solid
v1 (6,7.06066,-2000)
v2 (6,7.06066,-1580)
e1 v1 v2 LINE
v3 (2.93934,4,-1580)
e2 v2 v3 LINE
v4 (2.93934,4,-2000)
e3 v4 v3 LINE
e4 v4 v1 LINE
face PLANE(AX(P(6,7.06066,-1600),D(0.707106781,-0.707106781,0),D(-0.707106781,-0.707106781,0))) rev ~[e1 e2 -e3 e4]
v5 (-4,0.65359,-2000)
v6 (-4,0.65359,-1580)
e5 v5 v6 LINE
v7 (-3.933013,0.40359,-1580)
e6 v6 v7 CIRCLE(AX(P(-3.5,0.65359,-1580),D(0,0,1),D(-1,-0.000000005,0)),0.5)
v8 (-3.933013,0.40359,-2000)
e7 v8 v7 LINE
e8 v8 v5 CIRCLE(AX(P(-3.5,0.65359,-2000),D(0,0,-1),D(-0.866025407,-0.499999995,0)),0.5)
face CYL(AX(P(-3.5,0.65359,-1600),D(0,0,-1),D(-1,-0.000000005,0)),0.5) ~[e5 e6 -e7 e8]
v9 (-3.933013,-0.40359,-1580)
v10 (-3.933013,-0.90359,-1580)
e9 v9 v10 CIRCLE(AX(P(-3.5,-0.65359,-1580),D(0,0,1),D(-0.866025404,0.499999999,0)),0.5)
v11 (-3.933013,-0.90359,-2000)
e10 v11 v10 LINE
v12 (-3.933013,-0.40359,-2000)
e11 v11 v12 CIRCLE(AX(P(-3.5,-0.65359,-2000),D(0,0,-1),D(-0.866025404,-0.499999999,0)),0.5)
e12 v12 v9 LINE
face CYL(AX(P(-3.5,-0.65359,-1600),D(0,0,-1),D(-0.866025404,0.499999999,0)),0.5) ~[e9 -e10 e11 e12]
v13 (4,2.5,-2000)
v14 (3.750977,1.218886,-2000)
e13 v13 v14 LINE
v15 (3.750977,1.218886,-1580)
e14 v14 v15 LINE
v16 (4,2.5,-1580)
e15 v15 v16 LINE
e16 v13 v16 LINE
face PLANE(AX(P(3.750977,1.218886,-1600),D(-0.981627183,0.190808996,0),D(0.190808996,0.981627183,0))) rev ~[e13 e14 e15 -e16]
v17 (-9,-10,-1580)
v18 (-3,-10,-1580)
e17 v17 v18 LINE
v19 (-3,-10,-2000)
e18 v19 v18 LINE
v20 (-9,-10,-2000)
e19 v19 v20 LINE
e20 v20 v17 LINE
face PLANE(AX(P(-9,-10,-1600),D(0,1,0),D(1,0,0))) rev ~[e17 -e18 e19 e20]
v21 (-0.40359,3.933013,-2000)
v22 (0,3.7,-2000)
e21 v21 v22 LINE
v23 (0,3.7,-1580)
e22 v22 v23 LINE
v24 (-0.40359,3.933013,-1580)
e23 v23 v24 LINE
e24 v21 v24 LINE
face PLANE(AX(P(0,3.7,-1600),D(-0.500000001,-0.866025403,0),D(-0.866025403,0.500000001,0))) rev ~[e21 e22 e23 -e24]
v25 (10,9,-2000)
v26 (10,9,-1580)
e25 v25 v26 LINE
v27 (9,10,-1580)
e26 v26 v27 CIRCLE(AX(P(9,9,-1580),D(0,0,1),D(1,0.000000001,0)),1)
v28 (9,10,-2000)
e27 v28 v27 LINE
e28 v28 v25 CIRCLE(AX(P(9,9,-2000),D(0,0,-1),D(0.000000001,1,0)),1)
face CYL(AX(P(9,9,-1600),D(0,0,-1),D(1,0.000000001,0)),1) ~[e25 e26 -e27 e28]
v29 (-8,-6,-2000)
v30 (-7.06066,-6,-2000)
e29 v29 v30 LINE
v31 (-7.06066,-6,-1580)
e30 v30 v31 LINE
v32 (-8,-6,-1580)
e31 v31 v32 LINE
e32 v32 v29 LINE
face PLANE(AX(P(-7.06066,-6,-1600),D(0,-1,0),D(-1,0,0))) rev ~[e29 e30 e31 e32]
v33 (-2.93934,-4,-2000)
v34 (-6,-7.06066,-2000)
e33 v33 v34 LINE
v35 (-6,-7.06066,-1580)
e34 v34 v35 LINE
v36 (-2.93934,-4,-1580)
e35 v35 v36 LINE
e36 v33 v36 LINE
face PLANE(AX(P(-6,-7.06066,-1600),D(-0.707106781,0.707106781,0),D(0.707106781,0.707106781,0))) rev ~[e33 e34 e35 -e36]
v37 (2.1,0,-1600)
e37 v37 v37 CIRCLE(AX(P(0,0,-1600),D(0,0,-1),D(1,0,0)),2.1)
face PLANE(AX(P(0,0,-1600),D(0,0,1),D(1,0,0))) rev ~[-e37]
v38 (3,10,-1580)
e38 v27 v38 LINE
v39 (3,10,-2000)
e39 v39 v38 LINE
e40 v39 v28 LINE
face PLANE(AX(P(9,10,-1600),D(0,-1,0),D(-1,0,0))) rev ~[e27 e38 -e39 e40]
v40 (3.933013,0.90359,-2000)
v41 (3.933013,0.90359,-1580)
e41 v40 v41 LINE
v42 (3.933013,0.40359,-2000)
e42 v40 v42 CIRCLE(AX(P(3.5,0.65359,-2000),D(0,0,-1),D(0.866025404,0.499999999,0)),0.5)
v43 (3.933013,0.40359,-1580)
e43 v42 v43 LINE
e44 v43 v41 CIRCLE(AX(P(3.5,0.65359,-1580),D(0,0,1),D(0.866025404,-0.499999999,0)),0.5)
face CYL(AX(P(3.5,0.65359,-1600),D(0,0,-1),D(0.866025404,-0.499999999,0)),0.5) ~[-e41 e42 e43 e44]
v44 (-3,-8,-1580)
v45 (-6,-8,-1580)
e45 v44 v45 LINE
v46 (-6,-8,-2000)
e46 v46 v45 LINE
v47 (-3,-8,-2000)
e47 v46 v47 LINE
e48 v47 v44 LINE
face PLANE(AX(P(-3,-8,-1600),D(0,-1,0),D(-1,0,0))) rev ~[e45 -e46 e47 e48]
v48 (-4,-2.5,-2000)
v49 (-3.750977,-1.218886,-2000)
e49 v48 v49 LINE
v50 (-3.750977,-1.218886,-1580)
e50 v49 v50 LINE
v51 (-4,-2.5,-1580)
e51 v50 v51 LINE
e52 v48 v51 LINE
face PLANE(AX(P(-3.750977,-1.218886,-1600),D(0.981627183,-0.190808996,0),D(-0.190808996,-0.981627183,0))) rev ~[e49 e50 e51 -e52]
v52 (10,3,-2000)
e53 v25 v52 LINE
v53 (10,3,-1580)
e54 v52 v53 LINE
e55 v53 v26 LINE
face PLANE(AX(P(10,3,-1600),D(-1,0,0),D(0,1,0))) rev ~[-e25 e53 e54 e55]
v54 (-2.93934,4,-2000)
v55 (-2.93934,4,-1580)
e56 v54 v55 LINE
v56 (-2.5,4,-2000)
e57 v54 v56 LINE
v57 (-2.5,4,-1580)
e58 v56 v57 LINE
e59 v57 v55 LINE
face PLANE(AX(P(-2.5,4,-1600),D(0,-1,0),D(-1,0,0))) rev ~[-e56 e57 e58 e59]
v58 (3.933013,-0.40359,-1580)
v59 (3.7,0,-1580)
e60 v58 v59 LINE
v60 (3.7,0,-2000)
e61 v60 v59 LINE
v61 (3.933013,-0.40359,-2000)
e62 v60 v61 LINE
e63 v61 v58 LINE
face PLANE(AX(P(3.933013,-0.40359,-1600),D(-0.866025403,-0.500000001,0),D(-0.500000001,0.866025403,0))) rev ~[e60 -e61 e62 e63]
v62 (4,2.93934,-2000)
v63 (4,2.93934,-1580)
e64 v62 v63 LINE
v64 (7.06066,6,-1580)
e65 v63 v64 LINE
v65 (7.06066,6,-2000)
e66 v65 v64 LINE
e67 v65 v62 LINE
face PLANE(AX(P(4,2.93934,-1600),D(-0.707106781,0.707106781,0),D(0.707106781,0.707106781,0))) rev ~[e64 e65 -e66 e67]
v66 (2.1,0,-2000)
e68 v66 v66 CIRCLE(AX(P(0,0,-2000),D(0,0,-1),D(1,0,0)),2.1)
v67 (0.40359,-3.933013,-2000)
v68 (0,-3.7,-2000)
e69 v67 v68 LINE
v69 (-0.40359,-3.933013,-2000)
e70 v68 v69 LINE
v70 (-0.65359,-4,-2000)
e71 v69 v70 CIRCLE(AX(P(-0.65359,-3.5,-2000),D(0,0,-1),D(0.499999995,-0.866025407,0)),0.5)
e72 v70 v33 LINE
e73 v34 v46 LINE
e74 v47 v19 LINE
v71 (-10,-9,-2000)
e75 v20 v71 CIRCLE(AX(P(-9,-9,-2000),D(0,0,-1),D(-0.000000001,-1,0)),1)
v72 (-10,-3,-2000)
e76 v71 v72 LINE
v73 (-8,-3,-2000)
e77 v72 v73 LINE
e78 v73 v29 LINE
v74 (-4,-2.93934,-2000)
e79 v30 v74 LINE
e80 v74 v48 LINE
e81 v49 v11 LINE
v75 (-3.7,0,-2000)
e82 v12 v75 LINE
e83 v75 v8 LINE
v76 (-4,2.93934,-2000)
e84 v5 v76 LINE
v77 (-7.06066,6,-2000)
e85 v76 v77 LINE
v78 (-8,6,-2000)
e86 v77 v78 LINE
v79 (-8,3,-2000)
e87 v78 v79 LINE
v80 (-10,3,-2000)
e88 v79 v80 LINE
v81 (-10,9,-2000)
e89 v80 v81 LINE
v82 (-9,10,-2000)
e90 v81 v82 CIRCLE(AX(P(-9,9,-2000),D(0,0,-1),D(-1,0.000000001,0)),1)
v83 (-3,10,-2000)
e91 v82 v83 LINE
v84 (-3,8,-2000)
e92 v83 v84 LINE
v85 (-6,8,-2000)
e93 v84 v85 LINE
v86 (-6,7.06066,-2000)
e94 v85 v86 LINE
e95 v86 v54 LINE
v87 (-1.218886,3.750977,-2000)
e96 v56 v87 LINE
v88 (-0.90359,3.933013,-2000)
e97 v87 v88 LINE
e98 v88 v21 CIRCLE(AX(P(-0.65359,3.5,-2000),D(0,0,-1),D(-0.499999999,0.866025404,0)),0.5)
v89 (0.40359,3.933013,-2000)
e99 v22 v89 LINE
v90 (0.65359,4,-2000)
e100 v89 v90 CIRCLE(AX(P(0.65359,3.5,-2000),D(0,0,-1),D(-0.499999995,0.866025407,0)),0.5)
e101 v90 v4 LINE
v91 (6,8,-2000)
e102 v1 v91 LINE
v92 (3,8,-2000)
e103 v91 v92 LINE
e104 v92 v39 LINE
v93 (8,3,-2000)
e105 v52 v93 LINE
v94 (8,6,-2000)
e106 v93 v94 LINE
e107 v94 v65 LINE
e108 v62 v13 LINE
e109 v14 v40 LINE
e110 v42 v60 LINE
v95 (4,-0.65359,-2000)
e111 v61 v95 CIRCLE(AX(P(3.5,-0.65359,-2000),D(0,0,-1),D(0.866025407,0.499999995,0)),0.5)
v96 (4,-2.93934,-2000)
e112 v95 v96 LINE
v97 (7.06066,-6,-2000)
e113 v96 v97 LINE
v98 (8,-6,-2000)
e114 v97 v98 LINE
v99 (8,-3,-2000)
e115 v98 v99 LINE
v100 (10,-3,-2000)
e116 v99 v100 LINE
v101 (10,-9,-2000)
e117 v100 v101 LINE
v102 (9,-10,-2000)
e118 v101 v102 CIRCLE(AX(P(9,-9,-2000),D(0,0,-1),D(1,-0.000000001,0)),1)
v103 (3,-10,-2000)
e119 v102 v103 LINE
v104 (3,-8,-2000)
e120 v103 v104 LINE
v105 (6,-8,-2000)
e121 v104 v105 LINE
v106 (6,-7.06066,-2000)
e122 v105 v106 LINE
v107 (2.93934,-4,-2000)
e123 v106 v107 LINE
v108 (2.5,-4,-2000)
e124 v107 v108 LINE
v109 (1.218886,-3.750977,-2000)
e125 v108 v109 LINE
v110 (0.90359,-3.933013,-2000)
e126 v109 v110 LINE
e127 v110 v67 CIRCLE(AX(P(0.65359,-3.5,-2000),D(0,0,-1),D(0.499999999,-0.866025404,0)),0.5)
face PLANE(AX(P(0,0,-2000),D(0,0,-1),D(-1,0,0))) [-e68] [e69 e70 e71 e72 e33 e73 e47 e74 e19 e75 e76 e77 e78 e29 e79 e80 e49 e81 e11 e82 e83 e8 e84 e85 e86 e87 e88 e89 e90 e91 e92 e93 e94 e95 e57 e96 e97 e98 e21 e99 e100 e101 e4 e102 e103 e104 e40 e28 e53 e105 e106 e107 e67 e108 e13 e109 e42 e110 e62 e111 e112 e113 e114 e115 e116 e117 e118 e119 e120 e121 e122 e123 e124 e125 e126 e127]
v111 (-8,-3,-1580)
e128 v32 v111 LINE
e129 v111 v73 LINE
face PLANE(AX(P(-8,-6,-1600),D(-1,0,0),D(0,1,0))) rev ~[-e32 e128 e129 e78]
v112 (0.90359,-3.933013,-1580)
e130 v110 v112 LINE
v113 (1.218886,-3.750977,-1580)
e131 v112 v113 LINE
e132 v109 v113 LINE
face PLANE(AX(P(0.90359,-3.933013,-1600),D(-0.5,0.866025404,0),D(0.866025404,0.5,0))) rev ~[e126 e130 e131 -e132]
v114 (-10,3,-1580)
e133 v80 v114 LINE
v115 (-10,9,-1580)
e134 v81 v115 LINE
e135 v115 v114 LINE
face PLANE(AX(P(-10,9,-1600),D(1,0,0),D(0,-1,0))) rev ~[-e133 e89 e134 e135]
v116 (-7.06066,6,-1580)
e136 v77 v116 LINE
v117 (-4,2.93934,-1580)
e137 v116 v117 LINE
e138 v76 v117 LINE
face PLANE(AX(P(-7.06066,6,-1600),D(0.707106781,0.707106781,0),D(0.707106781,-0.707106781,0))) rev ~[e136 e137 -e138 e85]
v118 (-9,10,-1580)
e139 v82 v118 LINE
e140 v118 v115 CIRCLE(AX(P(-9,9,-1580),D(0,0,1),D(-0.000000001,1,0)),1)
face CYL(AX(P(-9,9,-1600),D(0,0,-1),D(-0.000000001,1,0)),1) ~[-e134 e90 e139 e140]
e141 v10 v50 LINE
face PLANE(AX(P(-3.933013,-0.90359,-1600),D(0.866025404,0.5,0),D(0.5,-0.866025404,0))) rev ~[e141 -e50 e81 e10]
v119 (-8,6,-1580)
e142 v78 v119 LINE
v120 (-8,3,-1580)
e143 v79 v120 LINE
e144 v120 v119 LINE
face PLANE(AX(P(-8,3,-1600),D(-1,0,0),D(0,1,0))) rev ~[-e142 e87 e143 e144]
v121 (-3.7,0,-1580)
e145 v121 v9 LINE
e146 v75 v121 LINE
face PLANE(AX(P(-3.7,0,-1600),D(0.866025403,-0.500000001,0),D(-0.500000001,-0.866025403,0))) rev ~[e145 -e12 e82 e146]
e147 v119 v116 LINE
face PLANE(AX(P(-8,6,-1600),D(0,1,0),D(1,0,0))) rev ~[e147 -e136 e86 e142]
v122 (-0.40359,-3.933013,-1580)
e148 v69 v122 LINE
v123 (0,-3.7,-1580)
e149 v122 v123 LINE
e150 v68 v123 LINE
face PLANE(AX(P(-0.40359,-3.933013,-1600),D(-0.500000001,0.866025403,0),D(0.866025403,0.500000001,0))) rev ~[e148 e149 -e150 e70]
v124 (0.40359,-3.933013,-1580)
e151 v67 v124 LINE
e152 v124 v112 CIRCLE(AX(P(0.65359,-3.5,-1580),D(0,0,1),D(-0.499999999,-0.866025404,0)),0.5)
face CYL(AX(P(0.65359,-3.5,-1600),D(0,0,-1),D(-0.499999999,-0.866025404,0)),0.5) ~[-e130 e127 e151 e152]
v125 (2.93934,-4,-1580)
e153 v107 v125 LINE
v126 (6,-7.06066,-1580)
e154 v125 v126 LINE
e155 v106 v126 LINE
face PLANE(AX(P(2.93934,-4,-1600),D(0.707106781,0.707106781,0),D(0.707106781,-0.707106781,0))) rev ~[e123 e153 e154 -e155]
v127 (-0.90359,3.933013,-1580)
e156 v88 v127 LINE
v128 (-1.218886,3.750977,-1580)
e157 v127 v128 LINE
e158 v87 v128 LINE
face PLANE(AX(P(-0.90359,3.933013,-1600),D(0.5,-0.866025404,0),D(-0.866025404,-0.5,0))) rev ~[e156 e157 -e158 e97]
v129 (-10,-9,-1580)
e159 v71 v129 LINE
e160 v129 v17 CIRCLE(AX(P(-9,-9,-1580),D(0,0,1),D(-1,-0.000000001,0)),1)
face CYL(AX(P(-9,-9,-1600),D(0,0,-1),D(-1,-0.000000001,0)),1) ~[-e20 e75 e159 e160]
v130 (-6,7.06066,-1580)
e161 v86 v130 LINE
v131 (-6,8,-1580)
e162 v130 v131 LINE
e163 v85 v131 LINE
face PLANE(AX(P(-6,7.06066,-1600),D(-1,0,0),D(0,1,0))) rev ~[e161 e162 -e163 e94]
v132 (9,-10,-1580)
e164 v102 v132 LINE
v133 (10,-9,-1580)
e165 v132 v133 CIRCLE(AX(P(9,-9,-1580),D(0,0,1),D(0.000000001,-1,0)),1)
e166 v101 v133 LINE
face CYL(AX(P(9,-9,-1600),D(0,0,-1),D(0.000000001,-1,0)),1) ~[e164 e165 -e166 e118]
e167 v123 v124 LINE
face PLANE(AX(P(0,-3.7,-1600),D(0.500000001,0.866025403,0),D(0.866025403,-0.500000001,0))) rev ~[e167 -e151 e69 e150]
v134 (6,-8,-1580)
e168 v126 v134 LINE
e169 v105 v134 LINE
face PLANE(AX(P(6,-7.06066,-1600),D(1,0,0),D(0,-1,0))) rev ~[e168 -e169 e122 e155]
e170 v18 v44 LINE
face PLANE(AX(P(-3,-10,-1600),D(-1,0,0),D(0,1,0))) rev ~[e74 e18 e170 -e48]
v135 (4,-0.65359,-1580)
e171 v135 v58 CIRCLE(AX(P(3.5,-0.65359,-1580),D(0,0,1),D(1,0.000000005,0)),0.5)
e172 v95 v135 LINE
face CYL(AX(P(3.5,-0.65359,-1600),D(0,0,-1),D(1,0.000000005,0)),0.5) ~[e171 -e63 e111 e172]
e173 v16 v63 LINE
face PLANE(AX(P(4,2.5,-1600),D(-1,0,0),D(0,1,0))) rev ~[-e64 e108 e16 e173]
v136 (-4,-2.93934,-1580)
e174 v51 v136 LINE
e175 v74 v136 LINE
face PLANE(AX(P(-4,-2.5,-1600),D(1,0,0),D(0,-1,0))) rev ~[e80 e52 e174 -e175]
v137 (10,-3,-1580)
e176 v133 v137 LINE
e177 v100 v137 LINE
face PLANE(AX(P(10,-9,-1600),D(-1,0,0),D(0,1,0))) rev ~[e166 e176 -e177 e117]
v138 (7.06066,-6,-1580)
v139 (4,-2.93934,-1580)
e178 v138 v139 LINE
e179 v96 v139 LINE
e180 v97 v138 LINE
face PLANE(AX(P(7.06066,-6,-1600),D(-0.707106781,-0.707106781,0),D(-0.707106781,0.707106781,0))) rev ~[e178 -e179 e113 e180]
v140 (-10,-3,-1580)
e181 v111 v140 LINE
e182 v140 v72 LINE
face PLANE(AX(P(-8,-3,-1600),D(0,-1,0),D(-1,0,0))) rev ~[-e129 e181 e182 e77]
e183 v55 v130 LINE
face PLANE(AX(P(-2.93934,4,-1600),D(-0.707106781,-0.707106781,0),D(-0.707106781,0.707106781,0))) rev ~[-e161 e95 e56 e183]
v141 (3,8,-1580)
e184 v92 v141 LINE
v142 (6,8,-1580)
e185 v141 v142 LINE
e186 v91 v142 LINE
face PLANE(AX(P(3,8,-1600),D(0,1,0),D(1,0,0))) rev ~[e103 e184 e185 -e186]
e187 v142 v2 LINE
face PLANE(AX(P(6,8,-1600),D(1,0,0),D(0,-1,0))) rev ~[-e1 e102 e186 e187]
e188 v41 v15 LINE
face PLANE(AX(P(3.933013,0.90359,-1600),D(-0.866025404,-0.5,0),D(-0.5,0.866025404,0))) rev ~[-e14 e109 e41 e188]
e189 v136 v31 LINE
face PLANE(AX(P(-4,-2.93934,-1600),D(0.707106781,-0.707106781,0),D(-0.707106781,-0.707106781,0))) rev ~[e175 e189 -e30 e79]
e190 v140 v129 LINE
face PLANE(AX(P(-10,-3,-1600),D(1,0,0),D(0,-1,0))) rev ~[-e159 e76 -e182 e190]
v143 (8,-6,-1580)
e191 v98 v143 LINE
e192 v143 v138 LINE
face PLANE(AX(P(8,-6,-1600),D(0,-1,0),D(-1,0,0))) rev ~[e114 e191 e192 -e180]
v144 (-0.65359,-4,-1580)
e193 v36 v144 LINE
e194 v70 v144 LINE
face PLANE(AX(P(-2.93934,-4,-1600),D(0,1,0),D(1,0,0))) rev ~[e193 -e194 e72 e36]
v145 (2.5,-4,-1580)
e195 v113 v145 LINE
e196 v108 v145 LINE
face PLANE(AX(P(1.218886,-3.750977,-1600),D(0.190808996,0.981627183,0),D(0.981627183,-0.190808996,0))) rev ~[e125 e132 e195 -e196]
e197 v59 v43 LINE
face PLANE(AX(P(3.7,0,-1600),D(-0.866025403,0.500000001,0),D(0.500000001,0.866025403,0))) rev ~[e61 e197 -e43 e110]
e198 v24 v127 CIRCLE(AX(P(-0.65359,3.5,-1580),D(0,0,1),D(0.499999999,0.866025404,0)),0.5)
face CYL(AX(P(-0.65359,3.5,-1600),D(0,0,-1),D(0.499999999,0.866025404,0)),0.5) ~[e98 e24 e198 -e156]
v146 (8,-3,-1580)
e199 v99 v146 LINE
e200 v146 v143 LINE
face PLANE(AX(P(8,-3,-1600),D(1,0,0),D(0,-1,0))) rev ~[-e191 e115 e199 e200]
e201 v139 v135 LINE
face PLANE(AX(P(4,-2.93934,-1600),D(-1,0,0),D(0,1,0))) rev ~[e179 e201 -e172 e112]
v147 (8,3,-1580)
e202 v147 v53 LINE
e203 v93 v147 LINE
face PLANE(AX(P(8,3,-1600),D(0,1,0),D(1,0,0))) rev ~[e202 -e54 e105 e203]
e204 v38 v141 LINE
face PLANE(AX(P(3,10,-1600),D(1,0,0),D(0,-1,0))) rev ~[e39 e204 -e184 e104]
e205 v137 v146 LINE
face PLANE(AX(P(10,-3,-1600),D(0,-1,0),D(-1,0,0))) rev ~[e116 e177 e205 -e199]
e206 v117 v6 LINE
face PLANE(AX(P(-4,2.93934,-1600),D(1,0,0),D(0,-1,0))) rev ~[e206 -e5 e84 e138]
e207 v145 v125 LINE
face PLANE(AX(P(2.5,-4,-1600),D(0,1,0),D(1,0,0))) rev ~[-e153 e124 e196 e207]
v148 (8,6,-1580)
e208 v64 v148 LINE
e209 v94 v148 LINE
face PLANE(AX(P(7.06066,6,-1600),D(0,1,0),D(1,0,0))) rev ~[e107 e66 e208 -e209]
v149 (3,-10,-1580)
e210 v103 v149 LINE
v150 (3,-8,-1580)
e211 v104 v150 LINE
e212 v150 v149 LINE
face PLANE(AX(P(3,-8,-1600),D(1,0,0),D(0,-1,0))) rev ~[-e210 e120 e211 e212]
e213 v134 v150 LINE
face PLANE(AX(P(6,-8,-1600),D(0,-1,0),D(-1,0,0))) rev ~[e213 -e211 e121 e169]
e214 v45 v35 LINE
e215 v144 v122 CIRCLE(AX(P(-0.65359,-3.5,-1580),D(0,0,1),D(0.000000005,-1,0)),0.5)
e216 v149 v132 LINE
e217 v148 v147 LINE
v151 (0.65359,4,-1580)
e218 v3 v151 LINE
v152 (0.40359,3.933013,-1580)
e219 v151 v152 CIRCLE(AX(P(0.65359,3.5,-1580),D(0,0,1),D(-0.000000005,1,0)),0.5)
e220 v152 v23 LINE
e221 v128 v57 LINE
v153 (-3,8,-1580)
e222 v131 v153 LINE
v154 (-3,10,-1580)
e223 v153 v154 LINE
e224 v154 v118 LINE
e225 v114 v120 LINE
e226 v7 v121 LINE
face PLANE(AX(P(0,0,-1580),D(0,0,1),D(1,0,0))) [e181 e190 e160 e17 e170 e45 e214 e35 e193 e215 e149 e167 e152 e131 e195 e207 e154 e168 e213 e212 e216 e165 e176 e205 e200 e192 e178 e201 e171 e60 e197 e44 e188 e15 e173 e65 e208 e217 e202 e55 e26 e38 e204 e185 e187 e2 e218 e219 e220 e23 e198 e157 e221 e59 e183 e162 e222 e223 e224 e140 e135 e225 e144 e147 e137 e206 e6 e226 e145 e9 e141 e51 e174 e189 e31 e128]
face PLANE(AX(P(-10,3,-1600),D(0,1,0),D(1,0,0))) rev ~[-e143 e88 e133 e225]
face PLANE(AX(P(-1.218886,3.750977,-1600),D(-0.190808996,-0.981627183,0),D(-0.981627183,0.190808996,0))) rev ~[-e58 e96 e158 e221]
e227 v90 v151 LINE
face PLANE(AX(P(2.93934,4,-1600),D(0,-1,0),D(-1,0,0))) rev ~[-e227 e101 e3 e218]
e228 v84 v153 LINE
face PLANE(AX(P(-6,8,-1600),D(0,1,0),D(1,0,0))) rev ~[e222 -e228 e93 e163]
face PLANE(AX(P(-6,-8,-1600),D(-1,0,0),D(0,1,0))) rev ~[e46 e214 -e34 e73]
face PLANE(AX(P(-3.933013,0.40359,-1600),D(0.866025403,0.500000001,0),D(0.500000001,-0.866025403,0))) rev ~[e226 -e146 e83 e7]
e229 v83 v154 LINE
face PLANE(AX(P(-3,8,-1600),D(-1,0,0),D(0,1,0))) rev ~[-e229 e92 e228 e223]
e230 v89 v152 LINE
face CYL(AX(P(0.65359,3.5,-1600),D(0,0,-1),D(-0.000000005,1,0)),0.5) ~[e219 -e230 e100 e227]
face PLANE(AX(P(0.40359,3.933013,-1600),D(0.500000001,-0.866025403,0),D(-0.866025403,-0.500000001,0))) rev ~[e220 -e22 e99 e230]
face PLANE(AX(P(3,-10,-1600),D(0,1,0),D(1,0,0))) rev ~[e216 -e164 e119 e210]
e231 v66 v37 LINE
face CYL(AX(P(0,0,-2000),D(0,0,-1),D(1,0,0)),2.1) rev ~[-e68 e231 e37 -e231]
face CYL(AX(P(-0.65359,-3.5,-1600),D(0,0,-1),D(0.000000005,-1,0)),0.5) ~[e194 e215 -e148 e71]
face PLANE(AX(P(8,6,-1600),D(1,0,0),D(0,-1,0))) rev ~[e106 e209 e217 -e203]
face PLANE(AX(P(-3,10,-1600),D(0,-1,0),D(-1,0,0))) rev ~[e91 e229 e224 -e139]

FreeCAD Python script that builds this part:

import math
import FreeCAD as App
import Part
import Sketcher
from FreeCAD import Vector
Q = App.Units.Quantity

doc = App.newDocument("Part")
body = doc.addObject("PartDesign::Body", "Body")

sketch1 = body.newObject("Sketcher::SketchObject", "Sketch")
sketch1.AttachmentSupport = (doc.getObject("XY_Plane"), [""])
sketch1.MapMode = "FlatFace"
sketch1.AttachmentOffset = App.Placement(Vector(0, 0, -2000), App.Rotation())
sketch1.addGeometry([
    Part.LineSegment(Vector(-10, -3, 0), Vector(-8, -3, 0)),
    Part.LineSegment(Vector(-8, -3, 0), Vector(-8, -6, 0)),
    Part.LineSegment(Vector(-8, -6, 0), Vector(-7.06, -6, 0)),
    Part.LineSegment(Vector(-7.06, -6, 0), Vector(-4, -2.94, 0)),
    Part.LineSegment(Vector(-4, -2.94, 0), Vector(-4, -2.5, 0)),
    Part.LineSegment(Vector(-4, -2.5, 0), Vector(-3.75, -1.22, 0)),
    Part.LineSegment(Vector(-3.75, -1.22, 0), Vector(-3.93, -0.9, 0)),
    Part.ArcOfCircle(Part.Circle(Vector(-3.5, -0.65, 0), Vector(0, 0, 1), 0.5), math.radians(150), math.radians(210)),
    Part.LineSegment(Vector(-3.93, -0.4, 0), Vector(-3.7, 0, 0)),
    Part.LineSegment(Vector(-3.7, 0, 0), Vector(-3.93, 0.4, 0)),
    Part.ArcOfCircle(Part.Circle(Vector(-3.5, 0.65, 0), Vector(0, 0, 1), 0.5), math.radians(-180), math.radians(-150)),
    Part.LineSegment(Vector(-4, 0.65, 0), Vector(-4, 2.94, 0)),
    Part.LineSegment(Vector(-4, 2.94, 0), Vector(-7.06, 6, 0)),
    Part.LineSegment(Vector(-7.06, 6, 0), Vector(-8, 6, 0)),
    Part.LineSegment(Vector(-8, 6, 0), Vector(-8, 3, 0)),
    Part.LineSegment(Vector(-8, 3, 0), Vector(-10, 3, 0)),
    Part.LineSegment(Vector(-10, 3, 0), Vector(-10, 9, 0)),
    Part.ArcOfCircle(Part.Circle(Vector(-9, 9, 0), Vector(0, 0, 1), 1), math.radians(90), math.radians(180)),
    Part.LineSegment(Vector(-9, 10, 0), Vector(-3, 10, 0)),
    Part.LineSegment(Vector(-3, 10, 0), Vector(-3, 8, 0)),
    Part.LineSegment(Vector(-3, 8, 0), Vector(-6, 8, 0)),
    Part.LineSegment(Vector(-6, 8, 0), Vector(-6, 7.06, 0)),
    Part.LineSegment(Vector(-6, 7.06, 0), Vector(-2.94, 4, 0)),
    Part.LineSegment(Vector(-2.94, 4, 0), Vector(-2.5, 4, 0)),
    Part.LineSegment(Vector(-2.5, 4, 0), Vector(-1.22, 3.75, 0)),
    Part.LineSegment(Vector(-1.22, 3.75, 0), Vector(-0.9, 3.93, 0)),
    Part.ArcOfCircle(Part.Circle(Vector(-0.65, 3.5, 0), Vector(0, 0, 1), 0.5), math.radians(60), math.radians(120)),
    Part.LineSegment(Vector(-0.4, 3.93, 0), Vector(0, 3.7, 0)),
    Part.LineSegment(Vector(0, 3.7, 0), Vector(0.4, 3.93, 0)),
    Part.ArcOfCircle(Part.Circle(Vector(0.65, 3.5, 0), Vector(0, 0, 1), 0.5), math.radians(90), math.radians(120)),
    Part.LineSegment(Vector(0.65, 4, 0), Vector(2.94, 4, 0)),
    Part.LineSegment(Vector(2.94, 4, 0), Vector(6, 7.06, 0)),
    Part.LineSegment(Vector(6, 7.06, 0), Vector(6, 8, 0)),
    Part.LineSegment(Vector(6, 8, 0), Vector(3, 8, 0)),
    Part.LineSegment(Vector(3, 8, 0), Vector(3, 10, 0)),
    Part.LineSegment(Vector(3, 10, 0), Vector(9, 10, 0)),
    Part.ArcOfCircle(Part.Circle(Vector(9, 9, 0), Vector(0, 0, 1), 1), math.radians(0), math.radians(90)),
    Part.LineSegment(Vector(10, 9, 0), Vector(10, 3, 0)),
    Part.LineSegment(Vector(10, 3, 0), Vector(8, 3, 0)),
    Part.LineSegment(Vector(8, 3, 0), Vector(8, 6, 0)),
    Part.LineSegment(Vector(8, 6, 0), Vector(7.06, 6, 0)),
    Part.LineSegment(Vector(7.06, 6, 0), Vector(4, 2.94, 0)),
    Part.LineSegment(Vector(4, 2.94, 0), Vector(4, 2.5, 0)),
    Part.LineSegment(Vector(4, 2.5, 0), Vector(3.75, 1.22, 0)),
    Part.LineSegment(Vector(3.75, 1.22, 0), Vector(3.93, 0.9, 0)),
    Part.ArcOfCircle(Part.Circle(Vector(3.5, 0.65, 0), Vector(0, 0, 1), 0.5), math.radians(-30), math.radians(30)),
    Part.LineSegment(Vector(3.93, 0.4, 0), Vector(3.7, 0, 0)),
    Part.LineSegment(Vector(3.7, 0, 0), Vector(3.93, -0.4, 0)),
    Part.ArcOfCircle(Part.Circle(Vector(3.5, -0.65, 0), Vector(0, 0, 1), 0.5), math.radians(0), math.radians(30)),
    Part.LineSegment(Vector(4, -0.65, 0), Vector(4, -2.94, 0)),
    Part.LineSegment(Vector(4, -2.94, 0), Vector(7.06, -6, 0)),
    Part.LineSegment(Vector(7.06, -6, 0), Vector(8, -6, 0)),
    Part.LineSegment(Vector(8, -6, 0), Vector(8, -3, 0)),
    Part.LineSegment(Vector(8, -3, 0), Vector(10, -3, 0)),
    Part.LineSegment(Vector(10, -3, 0), Vector(10, -9, 0)),
    Part.ArcOfCircle(Part.Circle(Vector(9, -9, 0), Vector(0, 0, 1), 1), math.radians(-90), math.radians(0)),
    Part.LineSegment(Vector(9, -10, 0), Vector(3, -10, 0)),
    Part.LineSegment(Vector(3, -10, 0), Vector(3, -8, 0)),
    Part.LineSegment(Vector(3, -8, 0), Vector(6, -8, 0)),
    Part.LineSegment(Vector(6, -8, 0), Vector(6, -7.06, 0)),
    Part.LineSegment(Vector(6, -7.06, 0), Vector(2.94, -4, 0)),
    Part.LineSegment(Vector(2.94, -4, 0), Vector(2.5, -4, 0)),
    Part.LineSegment(Vector(2.5, -4, 0), Vector(1.22, -3.75, 0)),
    Part.LineSegment(Vector(1.22, -3.75, 0), Vector(0.9, -3.93, 0)),
    Part.ArcOfCircle(Part.Circle(Vector(0.65, -3.5, 0), Vector(0, 0, 1), 0.5), math.radians(-120), math.radians(-60)),
    Part.LineSegment(Vector(0.4, -3.93, 0), Vector(0, -3.7, 0)),
    Part.LineSegment(Vector(0, -3.7, 0), Vector(-0.4, -3.93, 0)),
    Part.ArcOfCircle(Part.Circle(Vector(-0.65, -3.5, 0), Vector(0, 0, 1), 0.5), math.radians(-90), math.radians(-60)),
    Part.LineSegment(Vector(-0.65, -4, 0), Vector(-2.94, -4, 0)),
    Part.LineSegment(Vector(-2.94, -4, 0), Vector(-6, -7.06, 0)),
    Part.LineSegment(Vector(-6, -7.06, 0), Vector(-6, -8, 0)),
    Part.LineSegment(Vector(-6, -8, 0), Vector(-3, -8, 0)),
    Part.LineSegment(Vector(-3, -8, 0), Vector(-3, -10, 0)),
    Part.LineSegment(Vector(-3, -10, 0), Vector(-9, -10, 0)),
    Part.ArcOfCircle(Part.Circle(Vector(-9, -9, 0), Vector(0, 0, 1), 1), math.radians(-180), math.radians(-90)),
    Part.LineSegment(Vector(-10, -9, 0), Vector(-10, -3, 0)),
    Part.Circle(Vector(0, 0, 0), Vector(0, 0, 1), 2.1),
], False)
sketch1.addConstraint([
    Sketcher.Constraint("Coincident", 0, 2, 1, 1),
    Sketcher.Constraint("Coincident", 1, 2, 2, 1),
    Sketcher.Constraint("Coincident", 2, 2, 3, 1),
    Sketcher.Constraint("Coincident", 3, 2, 4, 1),
    Sketcher.Constraint("Coincident", 4, 2, 5, 1),
    Sketcher.Constraint("Coincident", 5, 2, 6, 1),
    Sketcher.Constraint("Tangent", 6, 2, 7, 2),
    Sketcher.Constraint("Tangent", 7, 1, 8, 1),
    Sketcher.Constraint("Coincident", 8, 2, 9, 1),
    Sketcher.Constraint("Tangent", 9, 2, 10, 2),
    Sketcher.Constraint("Tangent", 10, 1, 11, 1),
    Sketcher.Constraint("Coincident", 11, 2, 12, 1),
    Sketcher.Constraint("Coincident", 12, 2, 13, 1),
    Sketcher.Constraint("Coincident", 13, 2, 14, 1),
    Sketcher.Constraint("Coincident", 14, 2, 15, 1),
    Sketcher.Constraint("Coincident", 15, 2, 16, 1),
    Sketcher.Constraint("Tangent", 16, 2, 17, 2),
    Sketcher.Constraint("Tangent", 17, 1, 18, 1),
    Sketcher.Constraint("Coincident", 18, 2, 19, 1),
    Sketcher.Constraint("Coincident", 19, 2, 20, 1),
    Sketcher.Constraint("Coincident", 20, 2, 21, 1),
    Sketcher.Constraint("Coincident", 21, 2, 22, 1),
    Sketcher.Constraint("Coincident", 22, 2, 23, 1),
    Sketcher.Constraint("Coincident", 23, 2, 24, 1),
    Sketcher.Constraint("Coincident", 24, 2, 25, 1),
    Sketcher.Constraint("Tangent", 25, 2, 26, 2),
    Sketcher.Constraint("Tangent", 26, 1, 27, 1),
    Sketcher.Constraint("Coincident", 27, 2, 28, 1),
    Sketcher.Constraint("Tangent", 28, 2, 29, 2),
    Sketcher.Constraint("Tangent", 29, 1, 30, 1),
    Sketcher.Constraint("Coincident", 30, 2, 31, 1),
    Sketcher.Constraint("Coincident", 31, 2, 32, 1),
    Sketcher.Constraint("Coincident", 32, 2, 33, 1),
    Sketcher.Constraint("Coincident", 33, 2, 34, 1),
    Sketcher.Constraint("Coincident", 34, 2, 35, 1),
    Sketcher.Constraint("Tangent", 35, 2, 36, 2),
    Sketcher.Constraint("Tangent", 36, 1, 37, 1),
    Sketcher.Constraint("Coincident", 37, 2, 38, 1),
    Sketcher.Constraint("Coincident", 38, 2, 39, 1),
    Sketcher.Constraint("Coincident", 39, 2, 40, 1),
    Sketcher.Constraint("Coincident", 40, 2, 41, 1),
    Sketcher.Constraint("Coincident", 41, 2, 42, 1),
    Sketcher.Constraint("Coincident", 42, 2, 43, 1),
    Sketcher.Constraint("Coincident", 43, 2, 44, 1),
    Sketcher.Constraint("Tangent", 44, 2, 45, 2),
    Sketcher.Constraint("Tangent", 45, 1, 46, 1),
    Sketcher.Constraint("Coincident", 46, 2, 47, 1),
    Sketcher.Constraint("Tangent", 47, 2, 48, 2),
    Sketcher.Constraint("Tangent", 48, 1, 49, 1),
    Sketcher.Constraint("Coincident", 49, 2, 50, 1),
    Sketcher.Constraint("Coincident", 50, 2, 51, 1),
    Sketcher.Constraint("Coincident", 51, 2, 52, 1),
    Sketcher.Constraint("Coincident", 52, 2, 53, 1),
    Sketcher.Constraint("Coincident", 53, 2, 54, 1),
    Sketcher.Constraint("Tangent", 54, 2, 55, 2),
    Sketcher.Constraint("Tangent", 55, 1, 56, 1),
    Sketcher.Constraint("Coincident", 56, 2, 57, 1),
    Sketcher.Constraint("Coincident", 57, 2, 58, 1),
    Sketcher.Constraint("Coincident", 58, 2, 59, 1),
    Sketcher.Constraint("Coincident", 59, 2, 60, 1),
    Sketcher.Constraint("Coincident", 60, 2, 61, 1),
    Sketcher.Constraint("Coincident", 61, 2, 62, 1),
    Sketcher.Constraint("Coincident", 62, 2, 63, 1),
    Sketcher.Constraint("Tangent", 63, 2, 64, 2),
    Sketcher.Constraint("Tangent", 64, 1, 65, 1),
    Sketcher.Constraint("Coincident", 65, 2, 66, 1),
    Sketcher.Constraint("Tangent", 66, 2, 67, 2),
    Sketcher.Constraint("Tangent", 67, 1, 68, 1),
    Sketcher.Constraint("Coincident", 68, 2, 69, 1),
    Sketcher.Constraint("Coincident", 69, 2, 70, 1),
    Sketcher.Constraint("Coincident", 70, 2, 71, 1),
    Sketcher.Constraint("Coincident", 71, 2, 72, 1),
    Sketcher.Constraint("Coincident", 72, 2, 73, 1),
    Sketcher.Constraint("Tangent", 73, 2, 74, 2),
    Sketcher.Constraint("Tangent", 74, 1, 75, 1),
    Sketcher.Constraint("Coincident", 75, 2, 0, 1),
    Sketcher.Constraint("Horizontal", 0),
    Sketcher.Constraint("Vertical", 1),
    Sketcher.Constraint("Horizontal", 2),
    Sketcher.Constraint("Vertical", 4),
    Sketcher.Constraint("Vertical", 11),
    Sketcher.Constraint("Horizontal", 13),
    Sketcher.Constraint("Vertical", 14),
    Sketcher.Constraint("Horizontal", 15),
    Sketcher.Constraint("Vertical", 16),
    Sketcher.Constraint("Horizontal", 18),
    Sketcher.Constraint("Vertical", 19),
    Sketcher.Constraint("Horizontal", 20),
    Sketcher.Constraint("Vertical", 21),
    Sketcher.Constraint("Horizontal", 23),
    Sketcher.Constraint("Horizontal", 30),
    Sketcher.Constraint("Vertical", 32),
    Sketcher.Constraint("Horizontal", 33),
    Sketcher.Constraint("Vertical", 34),
    Sketcher.Constraint("Horizontal", 35),
    Sketcher.Constraint("Vertical", 37),
    Sketcher.Constraint("Horizontal", 38),
    Sketcher.Constraint("Vertical", 39),
    Sketcher.Constraint("Horizontal", 40),
    Sketcher.Constraint("Vertical", 42),
    Sketcher.Constraint("Vertical", 49),
    Sketcher.Constraint("Horizontal", 51),
    Sketcher.Constraint("Vertical", 52),
    Sketcher.Constraint("Horizontal", 53),
    Sketcher.Constraint("Vertical", 54),
    Sketcher.Constraint("Horizontal", 56),
    Sketcher.Constraint("Vertical", 57),
    Sketcher.Constraint("Horizontal", 58),
    Sketcher.Constraint("Vertical", 59),
    Sketcher.Constraint("Horizontal", 61),
    Sketcher.Constraint("Horizontal", 68),
    Sketcher.Constraint("Vertical", 70),
    Sketcher.Constraint("Horizontal", 71),
    Sketcher.Constraint("Vertical", 72),
    Sketcher.Constraint("Horizontal", 73),
    Sketcher.Constraint("Vertical", 75),
    Sketcher.Constraint("Coincident", 76, 3, -1, 1),
    Sketcher.Constraint("Equal", 7, 10),
    Sketcher.Constraint("Equal", 10, 26),
    Sketcher.Constraint("Equal", 26, 29),
    Sketcher.Constraint("Equal", 17, 36),
    Sketcher.Constraint("Equal", 29, 45),
    Sketcher.Constraint("Equal", 45, 48),
    Sketcher.Constraint("Equal", 36, 55),
    Sketcher.Constraint("Equal", 48, 64),
    Sketcher.Constraint("Equal", 64, 67),
    Sketcher.Constraint("Equal", 55, 74),
    Sketcher.Constraint("Symmetric", 7, 3, 45, 3, -1, 1),
    Sketcher.Constraint("Symmetric", 10, 3, 48, 3, -1, 1),
    Sketcher.Constraint("Symmetric", 17, 3, 55, 3, -1, 1),
    Sketcher.Constraint("Symmetric", 26, 3, 64, 3, -1, 1),
    Sketcher.Constraint("Symmetric", 29, 3, 67, 3, -1, 1),
    Sketcher.Constraint("Symmetric", 36, 3, 74, 3, -1, 1),
    Sketcher.Constraint("Symmetric", 0, 2, 38, 2, -1, 1),
    Sketcher.Constraint("Symmetric", 2, 2, 40, 2, -1, 1),
    Sketcher.Constraint("Symmetric", 3, 2, 41, 2, -1, 1),
    Sketcher.Constraint("Symmetric", 5, 2, 43, 2, -1, 1),
    Sketcher.Constraint("Symmetric", 8, 2, 46, 2, -1, 1),
    Sketcher.Constraint("Symmetric", 12, 2, 50, 2, -1, 1),
    Sketcher.Constraint("Symmetric", 14, 2, 52, 2, -1, 1),
    Sketcher.Constraint("Symmetric", 19, 2, 57, 2, -1, 1),
    Sketcher.Constraint("Symmetric", 21, 2, 59, 2, -1, 1),
    Sketcher.Constraint("Symmetric", 22, 2, 60, 2, -1, 1),
    Sketcher.Constraint("Symmetric", 24, 2, 62, 2, -1, 1),
    Sketcher.Constraint("Symmetric", 27, 2, 65, 2, -1, 1),
    Sketcher.Constraint("Symmetric", 31, 2, 69, 2, -1, 1),
    Sketcher.Constraint("Symmetric", 33, 2, 71, 2, -1, 1),
    Sketcher.Constraint("Symmetric", 26, 3, 29, 3, -2),
    Sketcher.Constraint("Symmetric", 17, 3, 36, 3, -2),
    Sketcher.Constraint("Symmetric", 10, 3, 45, 3, -2),
    Sketcher.Constraint("Symmetric", 22, 2, 30, 2, -2),
    Sketcher.Constraint("Symmetric", 21, 2, 31, 2, -2),
    Sketcher.Constraint("Symmetric", 19, 2, 33, 2, -2),
    Sketcher.Constraint("Symmetric", 14, 2, 38, 2, -2),
    Sketcher.Constraint("Symmetric", 12, 2, 40, 2, -2),
    Sketcher.Constraint("Symmetric", 11, 2, 41, 2, -2),
    Sketcher.Constraint("PointOnObject", 8, 2, -1),
    Sketcher.Constraint("PointOnObject", 27, 2, -2),
    Sketcher.Constraint("Parallel", 6, 9),
    Sketcher.Constraint("Perpendicular", 3, 12),
    Sketcher.Constraint("Parallel", 12, 22),
    Sketcher.Constraint("Perpendicular", 5, 24),
    Sketcher.Constraint("Perpendicular", 9, 25),
    Sketcher.Constraint("Perpendicular", 8, 27),
    Sketcher.Constraint("Perpendicular", 24, 43),
    Sketcher.Constraint("Perpendicular", 41, 50),
    Sketcher.Constraint("Perpendicular", 43, 62),
    Sketcher.Constraint("Perpendicular", 60, 69),
    Sketcher.Constraint("Equal", 71, 1),
    Sketcher.Constraint("Equal", 61, 4),
    Sketcher.Constraint("Equal", 68, 11),
    Sketcher.Constraint("Equal", 73, 16),
    Sketcher.Constraint("Equal", 53, 19),
    Sketcher.Constraint("Equal", 51, 21),
    Sketcher.Constraint("Equal", 12, 22),
    Sketcher.Constraint("Equal", 9, 27),
    Sketcher.Constraint("Radius", 17, 1.0),
    Sketcher.Constraint("Diameter", 76, 4.2),
    Sketcher.Constraint("Radius", 7, 0.5),
    Sketcher.Constraint("DistanceX", 0, 1, 0, 2, 2.0),
    Sketcher.Constraint("DistanceX", 18, 1, 18, 2, 6.0),
    Sketcher.Constraint("DistanceX", 20, 2, 20, 1, 3.0),
    Sketcher.Constraint("Angle", 5, Q("79 deg")),
    Sketcher.Constraint("Angle", 6, Q("120 deg")),
    Sketcher.Constraint("DistanceX", 17, 3, -1, 1, 9.0),
    Sketcher.Constraint("DistanceX", 3, 2, -1, 1, 4.0),
    Sketcher.Constraint("DistanceY", 4, 2, -1, 1, 2.5),
    Sketcher.Constraint("DistanceX", 8, 2, -1, 1, 3.7),
    Sketcher.Constraint("DistanceX", 2, 1, 2, 2, 0.93934),
])
pad1 = body.newObject("PartDesign::Pad", "Pad")
pad1.Profile = sketch1
pad1.Length = 400

sketch2 = body.newObject("Sketcher::SketchObject", "Sketch001")
sketch2.AttachmentSupport = (doc.getObject("XY_Plane"), [""])
sketch2.MapMode = "FlatFace"
sketch2.AttachmentOffset = App.Placement(Vector(0, 0, -1600), App.Rotation())
sketch2.addGeometry([
    Part.LineSegment(Vector(-10, -3, 0), Vector(-10, -9, 0)),
    Part.ArcOfCircle(Part.Circle(Vector(-9, -9, 0), Vector(0, 0, 1), 1), math.radians(-180), math.radians(-90)),
    Part.LineSegment(Vector(-9, -10, 0), Vector(-3, -10, 0)),
    Part.LineSegment(Vector(-3, -10, 0), Vector(-3, -8, 0)),
    Part.LineSegment(Vector(-3, -8, 0), Vector(-6, -8, 0)),
    Part.LineSegment(Vector(-6, -8, 0), Vector(-6, -7.06, 0)),
    Part.LineSegment(Vector(-6, -7.06, 0), Vector(-2.94, -4, 0)),
    Part.LineSegment(Vector(-2.94, -4, 0), Vector(-0.65, -4, 0)),
    Part.ArcOfCircle(Part.Circle(Vector(-0.65, -3.5, 0), Vector(0, 0, 1), 0.5), math.radians(-90), math.radians(-60)),
    Part.LineSegment(Vector(-0.4, -3.93, 0), Vector(0, -3.7, 0)),
    Part.LineSegment(Vector(0, -3.7, 0), Vector(0.4, -3.93, 0)),
    Part.ArcOfCircle(Part.Circle(Vector(0.65, -3.5, 0), Vector(0, 0, 1), 0.5), math.radians(-120), math.radians(-60)),
    Part.LineSegment(Vector(0.9, -3.93, 0), Vector(1.22, -3.75, 0)),
    Part.LineSegment(Vector(1.22, -3.75, 0), Vector(2.5, -4, 0)),
    Part.LineSegment(Vector(2.5, -4, 0), Vector(2.94, -4, 0)),
    Part.LineSegment(Vector(2.94, -4, 0), Vector(6, -7.06, 0)),
    Part.LineSegment(Vector(6, -7.06, 0), Vector(6, -8, 0)),
    Part.LineSegment(Vector(6, -8, 0), Vector(3, -8, 0)),
    Part.LineSegment(Vector(3, -8, 0), Vector(3, -10, 0)),
    Part.LineSegment(Vector(3, -10, 0), Vector(9, -10, 0)),
    Part.ArcOfCircle(Part.Circle(Vector(9, -9, 0), Vector(0, 0, 1), 1), math.radians(-90), math.radians(0)),
    Part.LineSegment(Vector(10, -9, 0), Vector(10, -3, 0)),
    Part.LineSegment(Vector(10, -3, 0), Vector(8, -3, 0)),
    Part.LineSegment(Vector(8, -3, 0), Vector(8, -6, 0)),
    Part.LineSegment(Vector(8, -6, 0), Vector(7.06, -6, 0)),
    Part.LineSegment(Vector(7.06, -6, 0), Vector(4, -2.94, 0)),
    Part.LineSegment(Vector(4, -2.94, 0), Vector(4, -0.65, 0)),
    Part.ArcOfCircle(Part.Circle(Vector(3.5, -0.65, 0), Vector(0, 0, 1), 0.5), math.radians(0), math.radians(30)),
    Part.LineSegment(Vector(3.93, -0.4, 0), Vector(3.7, 0, 0)),
    Part.LineSegment(Vector(3.7, 0, 0), Vector(3.93, 0.4, 0)),
    Part.ArcOfCircle(Part.Circle(Vector(3.5, 0.65, 0), Vector(0, 0, 1), 0.5), math.radians(-30), math.radians(30)),
    Part.LineSegment(Vector(3.93, 0.9, 0), Vector(3.75, 1.22, 0)),
    Part.LineSegment(Vector(3.75, 1.22, 0), Vector(4, 2.5, 0)),
    Part.LineSegment(Vector(4, 2.5, 0), Vector(4, 2.94, 0)),
    Part.LineSegment(Vector(4, 2.94, 0), Vector(7.06, 6, 0)),
    Part.LineSegment(Vector(7.06, 6, 0), Vector(8, 6, 0)),
    Part.LineSegment(Vector(8, 6, 0), Vector(8, 3, 0)),
    Part.LineSegment(Vector(8, 3, 0), Vector(10, 3, 0)),
    Part.LineSegment(Vector(10, 3, 0), Vector(10, 9, 0)),
    Part.ArcOfCircle(Part.Circle(Vector(9, 9, 0), Vector(0, 0, 1), 1), math.radians(0), math.radians(90)),
    Part.LineSegment(Vector(9, 10, 0), Vector(3, 10, 0)),
    Part.LineSegment(Vector(3, 10, 0), Vector(3, 8, 0)),
    Part.LineSegment(Vector(3, 8, 0), Vector(6, 8, 0)),
    Part.LineSegment(Vector(6, 8, 0), Vector(6, 7.06, 0)),
    Part.LineSegment(Vector(6, 7.06, 0), Vector(2.94, 4, 0)),
    Part.LineSegment(Vector(2.94, 4, 0), Vector(0.65, 4, 0)),
    Part.ArcOfCircle(Part.Circle(Vector(0.65, 3.5, 0), Vector(0, 0, 1), 0.5), math.radians(90), math.radians(120)),
    Part.LineSegment(Vector(0.4, 3.93, 0), Vector(0, 3.7, 0)),
    Part.LineSegment(Vector(0, 3.7, 0), Vector(-0.4, 3.93, 0)),
    Part.ArcOfCircle(Part.Circle(Vector(-0.65, 3.5, 0), Vector(0, 0, 1), 0.5), math.radians(60), math.radians(120)),
    Part.LineSegment(Vector(-0.9, 3.93, 0), Vector(-1.22, 3.75, 0)),
    Part.LineSegment(Vector(-1.22, 3.75, 0), Vector(-2.5, 4, 0)),
    Part.LineSegment(Vector(-2.5, 4, 0), Vector(-2.94, 4, 0)),
    Part.LineSegment(Vector(-2.94, 4, 0), Vector(-6, 7.06, 0)),
    Part.LineSegment(Vector(-6, 7.06, 0), Vector(-6, 8, 0)),
    Part.LineSegment(Vector(-6, 8, 0), Vector(-3, 8, 0)),
    Part.LineSegment(Vector(-3, 8, 0), Vector(-3, 10, 0)),
    Part.LineSegment(Vector(-3, 10, 0), Vector(-9, 10, 0)),
    Part.ArcOfCircle(Part.Circle(Vector(-9, 9, 0), Vector(0, 0, 1), 1), math.radians(90), math.radians(180)),
    Part.LineSegment(Vector(-10, 9, 0), Vector(-10, 3, 0)),
    Part.LineSegment(Vector(-10, 3, 0), Vector(-8, 3, 0)),
    Part.LineSegment(Vector(-8, 3, 0), Vector(-8, 6, 0)),
    Part.LineSegment(Vector(-8, 6, 0), Vector(-7.06, 6, 0)),
    Part.LineSegment(Vector(-7.06, 6, 0), Vector(-4, 2.94, 0)),
    Part.LineSegment(Vector(-4, 2.94, 0), Vector(-4, 0.65, 0)),
    Part.ArcOfCircle(Part.Circle(Vector(-3.5, 0.65, 0), Vector(0, 0, 1), 0.5), math.radians(-180), math.radians(-150)),
    Part.LineSegment(Vector(-3.93, 0.4, 0), Vector(-3.7, 0, 0)),
    Part.LineSegment(Vector(-3.7, 0, 0), Vector(-3.93, -0.4, 0)),
    Part.ArcOfCircle(Part.Circle(Vector(-3.5, -0.65, 0), Vector(0, 0, 1), 0.5), math.radians(150), math.radians(210)),
    Part.LineSegment(Vector(-3.93, -0.9, 0), Vector(-3.75, -1.22, 0)),
    Part.LineSegment(Vector(-3.75, -1.22, 0), Vector(-4, -2.5, 0)),
    Part.LineSegment(Vector(-4, -2.5, 0), Vector(-4, -2.94, 0)),
    Part.LineSegment(Vector(-4, -2.94, 0), Vector(-7.06, -6, 0)),
    Part.LineSegment(Vector(-7.06, -6, 0), Vector(-8, -6, 0)),
    Part.LineSegment(Vector(-8, -6, 0), Vector(-8, -3, 0)),
    Part.LineSegment(Vector(-8, -3, 0), Vector(-10, -3, 0)),
], False)
sketch2.addConstraint([
    Sketcher.Constraint("Tangent", 0, 2, 1, 1),
    Sketcher.Constraint("Tangent", 1, 2, 2, 1),
    Sketcher.Constraint("Coincident", 2, 2, 3, 1),
    Sketcher.Constraint("Coincident", 3, 2, 4, 1),
    Sketcher.Constraint("Coincident", 4, 2, 5, 1),
    Sketcher.Constraint("Coincident", 5, 2, 6, 1),
    Sketcher.Constraint("Coincident", 6, 2, 7, 1),
    Sketcher.Constraint("Tangent", 7, 2, 8, 1),
    Sketcher.Constraint("Tangent", 8, 2, 9, 1),
    Sketcher.Constraint("Coincident", 9, 2, 10, 1),
    Sketcher.Constraint("Tangent", 10, 2, 11, 1),
    Sketcher.Constraint("Tangent", 11, 2, 12, 1),
    Sketcher.Constraint("Coincident", 12, 2, 13, 1),
    Sketcher.Constraint("Coincident", 13, 2, 14, 1),
    Sketcher.Constraint("Coincident", 14, 2, 15, 1),
    Sketcher.Constraint("Coincident", 15, 2, 16, 1),
    Sketcher.Constraint("Coincident", 16, 2, 17, 1),
    Sketcher.Constraint("Coincident", 17, 2, 18, 1),
    Sketcher.Constraint("Coincident", 18, 2, 19, 1),
    Sketcher.Constraint("Tangent", 19, 2, 20, 1),
    Sketcher.Constraint("Tangent", 20, 2, 21, 1),
    Sketcher.Constraint("Coincident", 21, 2, 22, 1),
    Sketcher.Constraint("Coincident", 22, 2, 23, 1),
    Sketcher.Constraint("Coincident", 23, 2, 24, 1),
    Sketcher.Constraint("Coincident", 24, 2, 25, 1),
    Sketcher.Constraint("Coincident", 25, 2, 26, 1),
    Sketcher.Constraint("Tangent", 26, 2, 27, 1),
    Sketcher.Constraint("Tangent", 27, 2, 28, 1),
    Sketcher.Constraint("Coincident", 28, 2, 29, 1),
    Sketcher.Constraint("Tangent", 29, 2, 30, 1),
    Sketcher.Constraint("Tangent", 30, 2, 31, 1),
    Sketcher.Constraint("Coincident", 31, 2, 32, 1),
    Sketcher.Constraint("Coincident", 32, 2, 33, 1),
    Sketcher.Constraint("Coincident", 33, 2, 34, 1),
    Sketcher.Constraint("Coincident", 34, 2, 35, 1),
    Sketcher.Constraint("Coincident", 35, 2, 36, 1),
    Sketcher.Constraint("Coincident", 36, 2, 37, 1),
    Sketcher.Constraint("Coincident", 37, 2, 38, 1),
    Sketcher.Constraint("Tangent", 38, 2, 39, 1),
    Sketcher.Constraint("Tangent", 39, 2, 40, 1),
    Sketcher.Constraint("Coincident", 40, 2, 41, 1),
    Sketcher.Constraint("Coincident", 41, 2, 42, 1),
    Sketcher.Constraint("Coincident", 42, 2, 43, 1),
    Sketcher.Constraint("Coincident", 43, 2, 44, 1),
    Sketcher.Constraint("Coincident", 44, 2, 45, 1),
    Sketcher.Constraint("Tangent", 45, 2, 46, 1),
    Sketcher.Constraint("Tangent", 46, 2, 47, 1),
    Sketcher.Constraint("Coincident", 47, 2, 48, 1),
    Sketcher.Constraint("Tangent", 48, 2, 49, 1),
    Sketcher.Constraint("Tangent", 49, 2, 50, 1),
    Sketcher.Constraint("Coincident", 50, 2, 51, 1),
    Sketcher.Constraint("Coincident", 51, 2, 52, 1),
    Sketcher.Constraint("Coincident", 52, 2, 53, 1),
    Sketcher.Constraint("Coincident", 53, 2, 54, 1),
    Sketcher.Constraint("Coincident", 54, 2, 55, 1),
    Sketcher.Constraint("Coincident", 55, 2, 56, 1),
    Sketcher.Constraint("Coincident", 56, 2, 57, 1),
    Sketcher.Constraint("Tangent", 57, 2, 58, 1),
    Sketcher.Constraint("Tangent", 58, 2, 59, 1),
    Sketcher.Constraint("Coincident", 59, 2, 60, 1),
    Sketcher.Constraint("Coincident", 60, 2, 61, 1),
    Sketcher.Constraint("Coincident", 61, 2, 62, 1),
    Sketcher.Constraint("Coincident", 62, 2, 63, 1),
    Sketcher.Constraint("Coincident", 63, 2, 64, 1),
    Sketcher.Constraint("Tangent", 64, 2, 65, 1),
    Sketcher.Constraint("Tangent", 65, 2, 66, 1),
    Sketcher.Constraint("Coincident", 66, 2, 67, 1),
    Sketcher.Constraint("Tangent", 67, 2, 68, 1),
    Sketcher.Constraint("Tangent", 68, 2, 69, 1),
    Sketcher.Constraint("Coincident", 69, 2, 70, 1),
    Sketcher.Constraint("Coincident", 70, 2, 71, 1),
    Sketcher.Constraint("Coincident", 71, 2, 72, 1),
    Sketcher.Constraint("Coincident", 72, 2, 73, 1),
    Sketcher.Constraint("Coincident", 73, 2, 74, 1),
    Sketcher.Constraint("Coincident", 74, 2, 75, 1),
    Sketcher.Constraint("Coincident", 75, 2, 0, 1),
    Sketcher.Constraint("Vertical", 0),
    Sketcher.Constraint("Horizontal", 2),
    Sketcher.Constraint("Vertical", 3),
    Sketcher.Constraint("Horizontal", 4),
    Sketcher.Constraint("Vertical", 5),
    Sketcher.Constraint("Horizontal", 7),
    Sketcher.Constraint("Horizontal", 14),
    Sketcher.Constraint("Vertical", 16),
    Sketcher.Constraint("Horizontal", 17),
    Sketcher.Constraint("Vertical", 18),
    Sketcher.Constraint("Horizontal", 19),
    Sketcher.Constraint("Vertical", 21),
    Sketcher.Constraint("Horizontal", 22),
    Sketcher.Constraint("Vertical", 23),
    Sketcher.Constraint("Horizontal", 24),
    Sketcher.Constraint("Vertical", 26),
    Sketcher.Constraint("Vertical", 33),
    Sketcher.Constraint("Horizontal", 35),
    Sketcher.Constraint("Vertical", 36),
    Sketcher.Constraint("Horizontal", 37),
    Sketcher.Constraint("Vertical", 38),
    Sketcher.Constraint("Horizontal", 40),
    Sketcher.Constraint("Vertical", 41),
    Sketcher.Constraint("Horizontal", 42),
    Sketcher.Constraint("Vertical", 43),
    Sketcher.Constraint("Horizontal", 45),
    Sketcher.Constraint("Horizontal", 52),
    Sketcher.Constraint("Vertical", 54),
    Sketcher.Constraint("Horizontal", 55),
    Sketcher.Constraint("Vertical", 56),
    Sketcher.Constraint("Horizontal", 57),
    Sketcher.Constraint("Vertical", 59),
    Sketcher.Constraint("Horizontal", 60),
    Sketcher.Constraint("Vertical", 61),
    Sketcher.Constraint("Horizontal", 62),
    Sketcher.Constraint("Vertical", 64),
    Sketcher.Constraint("Vertical", 71),
    Sketcher.Constraint("Horizontal", 73),
    Sketcher.Constraint("Vertical", 74),
    Sketcher.Constraint("Horizontal", 75),
    Sketcher.Constraint("Equal", 8, 11),
    Sketcher.Constraint("Equal", 1, 20),
    Sketcher.Constraint("Equal", 11, 27),
    Sketcher.Constraint("Equal", 27, 30),
    Sketcher.Constraint("Equal", 20, 39),
    Sketcher.Constraint("Equal", 30, 46),
    Sketcher.Constraint("Equal", 46, 49),
    Sketcher.Constraint("Equal", 39, 58),
    Sketcher.Constraint("Equal", 49, 65),
    Sketcher.Constraint("Equal", 65, 68),
    Sketcher.Constraint("Symmetric", 1, 3, 39, 3, -1, 1),
    Sketcher.Constraint("Symmetric", 8, 3, 46, 3, -1, 1),
    Sketcher.Constraint("Symmetric", 11, 3, 49, 3, -1, 1),
    Sketcher.Constraint("Symmetric", 20, 3, 58, 3, -1, 1),
    Sketcher.Constraint("Symmetric", 27, 3, 65, 3, -1, 1),
    Sketcher.Constraint("Symmetric", 30, 3, 68, 3, -1, 1),
    Sketcher.Constraint("Symmetric", 3, 2, 41, 2, -1, 1),
    Sketcher.Constraint("Symmetric", 5, 2, 43, 2, -1, 1),
    Sketcher.Constraint("Symmetric", 9, 2, 47, 2, -1, 1),
    Sketcher.Constraint("Symmetric", 12, 2, 50, 2, -1, 1),
    Sketcher.Constraint("Symmetric", 13, 2, 51, 2, -1, 1),
    Sketcher.Constraint("Symmetric", 15, 2, 53, 2, -1, 1),
    Sketcher.Constraint("Symmetric", 17, 2, 55, 2, -1, 1),
    Sketcher.Constraint("Symmetric", 22, 2, 60, 2, -1, 1),
    Sketcher.Constraint("Symmetric", 24, 2, 62, 2, -1, 1),
    Sketcher.Constraint("Symmetric", 28, 2, 66, 2, -1, 1),
    Sketcher.Constraint("Symmetric", 31, 2, 69, 2, -1, 1),
    Sketcher.Constraint("Symmetric", 32, 2, 70, 2, -1, 1),
    Sketcher.Constraint("Symmetric", 34, 2, 72, 2, -1, 1),
    Sketcher.Constraint("Symmetric", 36, 2, 74, 2, -1, 1),
    Sketcher.Constraint("Symmetric", 8, 3, 11, 3, -2),
    Sketcher.Constraint("Symmetric", 1, 3, 20, 3, -2),
    Sketcher.Constraint("Symmetric", 30, 3, 65, 3, -2),
    Sketcher.Constraint("Symmetric", 6, 2, 14, 2, -2),
    Sketcher.Constraint("Symmetric", 5, 2, 15, 2, -2),
    Sketcher.Constraint("Symmetric", 3, 2, 17, 2, -2),
    Sketcher.Constraint("Symmetric", 36, 2, 60, 2, -2),
    Sketcher.Constraint("Symmetric", 34, 2, 62, 2, -2),
    Sketcher.Constraint("Symmetric", 33, 2, 63, 2, -2),
    Sketcher.Constraint("PointOnObject", 9, 2, -2),
    Sketcher.Constraint("PointOnObject", 28, 2, -1),
    Sketcher.Constraint("Parallel", 9, 12),
    Sketcher.Constraint("Perpendicular", 6, 15),
    Sketcher.Constraint("Parallel", 15, 25),
    Sketcher.Constraint("Perpendicular", 12, 28),
    Sketcher.Constraint("Parallel", 28, 31),
    Sketcher.Constraint("Perpendicular", 13, 32),
    Sketcher.Constraint("Perpendicular", 25, 34),
    Sketcher.Constraint("Parallel", 34, 44),
    Sketcher.Constraint("Perpendicular", 44, 53),
    Sketcher.Constraint("Perpendicular", 63, 72),
    Sketcher.Constraint("Equal", 57, 0),
    Sketcher.Constraint("Equal", 75, 3),
    Sketcher.Constraint("Equal", 73, 5),
    Sketcher.Constraint("Equal", 55, 23),
    Sketcher.Constraint("Equal", 45, 26),
    Sketcher.Constraint("Equal", 52, 33),
    Sketcher.Constraint("Equal", 15, 25),
    Sketcher.Constraint("Equal", 10, 28),
    Sketcher.Constraint("Radius", 1, 1.0),
    Sketcher.Constraint("Radius", 8, 0.5),
    Sketcher.Constraint("DistanceX", 2, 1, 2, 2, 6.0),
    Sketcher.Constraint("DistanceX", 4, 2, 4, 1, 3.0),
    Sketcher.Constraint("DistanceX", 22, 2, 22, 1, 2.0),
    Sketcher.Constraint("Angle", 9, Q("30 deg")),
    Sketcher.Constraint("Angle", 13, Q("-11 deg")),
    Sketcher.Constraint("DistanceX", 1, 3, -1, 1, 9.0),
    Sketcher.Constraint("DistanceY", 6, 2, -1, 1, 4.0),
    Sketcher.Constraint("DistanceY", 9, 2, -1, 1, 3.7),
    Sketcher.Constraint("DistanceX", -1, 1, 13, 2, 2.5),
    Sketcher.Constraint("DistanceX", 7, 1, 7, 2, 2.28575),
])
pad2 = body.newObject("PartDesign::Pad", "Pad001")
pad2.Profile = sketch2
pad2.Length = 20

doc.recompute()
